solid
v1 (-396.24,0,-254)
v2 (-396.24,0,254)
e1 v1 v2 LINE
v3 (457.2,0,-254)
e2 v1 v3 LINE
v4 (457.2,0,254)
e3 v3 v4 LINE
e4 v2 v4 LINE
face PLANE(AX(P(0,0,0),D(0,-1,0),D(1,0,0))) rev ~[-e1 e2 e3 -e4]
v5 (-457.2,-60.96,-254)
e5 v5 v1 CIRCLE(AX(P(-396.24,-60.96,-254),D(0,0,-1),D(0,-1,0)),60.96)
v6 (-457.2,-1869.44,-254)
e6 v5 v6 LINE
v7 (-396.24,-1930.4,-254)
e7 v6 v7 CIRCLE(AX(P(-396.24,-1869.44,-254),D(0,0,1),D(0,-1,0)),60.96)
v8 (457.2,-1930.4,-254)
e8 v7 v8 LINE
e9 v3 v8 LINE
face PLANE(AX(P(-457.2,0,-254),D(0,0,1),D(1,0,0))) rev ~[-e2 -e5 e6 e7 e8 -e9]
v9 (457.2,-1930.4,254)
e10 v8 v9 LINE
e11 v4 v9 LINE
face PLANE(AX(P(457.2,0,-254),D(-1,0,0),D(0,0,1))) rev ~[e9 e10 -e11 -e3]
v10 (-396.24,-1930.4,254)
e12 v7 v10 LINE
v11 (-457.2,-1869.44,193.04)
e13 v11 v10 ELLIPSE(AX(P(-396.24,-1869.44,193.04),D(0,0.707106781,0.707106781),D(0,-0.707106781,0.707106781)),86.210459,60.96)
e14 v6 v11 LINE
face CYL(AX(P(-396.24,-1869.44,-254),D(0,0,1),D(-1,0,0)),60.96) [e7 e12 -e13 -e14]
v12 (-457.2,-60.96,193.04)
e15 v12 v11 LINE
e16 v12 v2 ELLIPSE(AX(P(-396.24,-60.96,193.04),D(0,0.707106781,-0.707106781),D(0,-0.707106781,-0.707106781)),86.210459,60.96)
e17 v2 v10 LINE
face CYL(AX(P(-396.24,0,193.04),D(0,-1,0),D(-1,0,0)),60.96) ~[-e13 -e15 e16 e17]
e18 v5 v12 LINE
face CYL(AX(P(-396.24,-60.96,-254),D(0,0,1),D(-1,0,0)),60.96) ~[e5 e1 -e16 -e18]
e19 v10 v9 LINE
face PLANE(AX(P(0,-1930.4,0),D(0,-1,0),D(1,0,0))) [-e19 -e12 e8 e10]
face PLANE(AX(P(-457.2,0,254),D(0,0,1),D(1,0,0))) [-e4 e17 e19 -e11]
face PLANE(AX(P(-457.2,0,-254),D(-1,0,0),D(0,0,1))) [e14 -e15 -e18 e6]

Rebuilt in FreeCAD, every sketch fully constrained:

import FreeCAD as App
import Part
import Sketcher
Q = App.Units.Quantity


def edges_at(feature, points):
    """Names of the edges that pass closest to the given points."""
    edges = feature.Shape.Edges
    near = lambda p: min(range(len(edges)), key=lambda i: edges[i].distToShape(Part.Vertex(*p))[0])
    return sorted({f"Edge{near(p) + 1}" for p in points})


def add_polygon(sketch, points):
    """Adds a closed chain of lines whose ends are joined by coincident constraints."""
    first, n = sketch.GeometryCount, len(points)
    for a, b in zip(points, points[1:] + points[:1]):
        sketch.addGeometry(Part.LineSegment(App.Vector(*a, 0), App.Vector(*b, 0)), False)
    for i in range(n):
        sketch.addConstraint(Sketcher.Constraint("Coincident", first + i, 2, first + (i + 1) % n, 1))

doc = App.newDocument("Part")
body = doc.addObject("PartDesign::Body", "Body")

# Sketch on XZ plane
sketch1 = body.newObject("Sketcher::SketchObject", "Sketch")
sketch1.AttachmentSupport = (doc.getObject("XZ_Plane"), [""])
sketch1.MapMode = "FlatFace"
add_polygon(sketch1, [(-457, 254), (-457, -254), (457, -254), (457, 254)])  # lines 0-3
sketch1.addConstraint([
    Sketcher.Constraint("Vertical", 0),
    Sketcher.Constraint("Horizontal", 1),
    Sketcher.Constraint("Vertical", 2),
    Sketcher.Constraint("Horizontal", 3),
    Sketcher.Constraint("Symmetric", 0, 2, 2, 2, -1, 1),
    Sketcher.Constraint("DistanceX", 1, 1, 1, 2, Q("36 in")),
    Sketcher.Constraint("DistanceY", 0, 2, 0, 1, Q("20 in")),
])
pad1 = body.newObject("PartDesign::Pad", "Pad")
pad1.Profile = sketch1
pad1.Length = Q("76 in")
doc.recompute()

fillet = body.newObject("PartDesign::Fillet", "Fillet")
fillet.Base = (pad1, edges_at(pad1, [(-457.2, -965.2, 254), (-457.2, -1930.4, 0), (-457.2, 0, 0)]))
fillet.Radius = Q("2.4 in")

doc.recompute()
